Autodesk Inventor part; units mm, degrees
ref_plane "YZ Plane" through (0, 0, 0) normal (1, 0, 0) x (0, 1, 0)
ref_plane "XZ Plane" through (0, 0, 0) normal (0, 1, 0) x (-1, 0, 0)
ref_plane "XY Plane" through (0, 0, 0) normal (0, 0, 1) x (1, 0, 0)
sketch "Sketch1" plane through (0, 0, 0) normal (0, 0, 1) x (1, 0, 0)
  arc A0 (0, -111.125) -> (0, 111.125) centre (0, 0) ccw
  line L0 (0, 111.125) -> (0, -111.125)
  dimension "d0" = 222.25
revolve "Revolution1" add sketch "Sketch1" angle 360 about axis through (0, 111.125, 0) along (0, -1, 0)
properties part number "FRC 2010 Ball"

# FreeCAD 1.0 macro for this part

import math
import FreeCAD as App
import Part
import Sketcher

V = App.Vector
Q = App.Units.Quantity

doc = App.newDocument("Part")
body = doc.addObject("PartDesign::Body", "Body")

# Sketch on XY plane
sketch1 = doc.addObject("Sketcher::SketchObject", "Sketch")
body.addObject(sketch1)
sketch1.AttachmentSupport = (doc.XY_Plane, [""])
sketch1.MapMode = "FlatFace"
sketch1.addGeometry([
    Part.LineSegment(V(0, 111.125, 0), V(0, -111.125, 0)),
    Part.ArcOfCircle(Part.Circle(V(0, 0, 0), V(0, 0, 1), 111.125), math.radians(-90), math.radians(90)),
], False)
sketch1.addConstraint([
    Sketcher.Constraint("Coincident", 0, 1, 1, 2),
    Sketcher.Constraint("Coincident", 1, 1, 0, 2),
    Sketcher.Constraint("Vertical", 0),
    Sketcher.Constraint("Coincident", 1, 3, -1, 1),
    Sketcher.Constraint("PointOnObject", 0, 1, -2),
    Sketcher.Constraint("Radius", 1, Q("4.375 in")),
])
revolution = doc.addObject("PartDesign::Revolution", "Revolution")
body.addObject(revolution)
revolution.Profile = sketch1
revolution.ReferenceAxis = (sketch1, ["V_Axis"])
revolution.Angle = 360

doc.recompute()
